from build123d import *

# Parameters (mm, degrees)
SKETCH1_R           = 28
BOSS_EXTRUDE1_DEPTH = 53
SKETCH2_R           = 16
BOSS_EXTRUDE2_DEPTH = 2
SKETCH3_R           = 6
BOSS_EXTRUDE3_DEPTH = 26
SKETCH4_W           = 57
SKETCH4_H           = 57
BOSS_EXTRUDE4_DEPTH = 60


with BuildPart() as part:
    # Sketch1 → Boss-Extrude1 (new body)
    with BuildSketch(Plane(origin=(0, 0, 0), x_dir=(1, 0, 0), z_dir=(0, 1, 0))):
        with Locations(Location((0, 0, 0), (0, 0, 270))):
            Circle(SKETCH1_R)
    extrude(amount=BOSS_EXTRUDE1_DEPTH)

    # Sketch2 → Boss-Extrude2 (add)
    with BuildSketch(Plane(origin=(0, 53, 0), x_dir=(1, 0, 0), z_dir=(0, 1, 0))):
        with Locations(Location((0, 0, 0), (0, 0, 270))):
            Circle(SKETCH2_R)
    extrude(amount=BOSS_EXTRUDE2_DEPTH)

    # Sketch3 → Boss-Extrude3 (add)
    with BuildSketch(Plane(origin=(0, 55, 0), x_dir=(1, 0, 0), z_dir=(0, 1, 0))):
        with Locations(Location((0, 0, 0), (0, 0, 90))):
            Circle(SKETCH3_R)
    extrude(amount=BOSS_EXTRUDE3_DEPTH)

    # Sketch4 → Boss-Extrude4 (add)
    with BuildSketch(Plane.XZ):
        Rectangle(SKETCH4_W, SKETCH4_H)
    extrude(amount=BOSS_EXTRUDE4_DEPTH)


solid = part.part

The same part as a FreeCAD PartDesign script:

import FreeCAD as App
import Part
import Sketcher


def add_polygon(sketch, points):
    """Adds a closed chain of lines whose ends are joined by coincident constraints."""
    first, n = sketch.GeometryCount, len(points)
    for a, b in zip(points, points[1:] + points[:1]):
        sketch.addGeometry(Part.LineSegment(App.Vector(*a, 0), App.Vector(*b, 0)), False)
    for i in range(n):
        sketch.addConstraint(Sketcher.Constraint("Coincident", first + i, 2, first + (i + 1) % n, 1))

doc = App.newDocument("Part")
body = doc.addObject("PartDesign::Body", "Body")

# Sketch on XZ plane
sketch1 = body.newObject("Sketcher::SketchObject", "Sketch")
sketch1.AttachmentSupport = (doc.getObject("XZ_Plane"), [""])
sketch1.MapMode = "FlatFace"
sketch1.addGeometry(Part.Circle(App.Vector(0, 0, 0), App.Vector(0, 0, 1), 28), False)
sketch1.addConstraint([
    Sketcher.Constraint("Coincident", 0, 3, -1, 1),
    Sketcher.Constraint("Diameter", 0, 56.0),
])
pad1 = body.newObject("PartDesign::Pad", "Pad")
pad1.Profile = sketch1
pad1.Length = 53
pad1.Reversed = True

# Sketch on XZ plane
sketch2 = body.newObject("Sketcher::SketchObject", "Sketch001")
sketch2.AttachmentSupport = (doc.getObject("XZ_Plane"), [""])
sketch2.MapMode = "FlatFace"
sketch2.AttachmentOffset = App.Placement(App.Vector(0, 0, -53), App.Rotation())
sketch2.addGeometry(Part.Circle(App.Vector(0, 0, 0), App.Vector(0, 0, 1), 16), False)
sketch2.addConstraint([
    Sketcher.Constraint("Coincident", 0, 3, -1, 1),
    Sketcher.Constraint("Diameter", 0, 32.0),
])
pad2 = body.newObject("PartDesign::Pad", "Pad001")
pad2.Profile = sketch2
pad2.Length = 2
pad2.Reversed = True

# Sketch on XZ plane
sketch3 = body.newObject("Sketcher::SketchObject", "Sketch002")
sketch3.AttachmentSupport = (doc.getObject("XZ_Plane"), [""])
sketch3.MapMode = "FlatFace"
sketch3.AttachmentOffset = App.Placement(App.Vector(0, 0, -55), App.Rotation())
sketch3.addGeometry(Part.Circle(App.Vector(0, 0, 0), App.Vector(0, 0, 1), 6), False)
sketch3.addConstraint([
    Sketcher.Constraint("Coincident", 0, 3, -1, 1),
    Sketcher.Constraint("Diameter", 0, 12.0),
])
pad3 = body.newObject("PartDesign::Pad", "Pad002")
pad3.Profile = sketch3
pad3.Length = 26
pad3.Reversed = True

# Sketch on XZ plane
sketch4 = body.newObject("Sketcher::SketchObject", "Sketch003")
sketch4.AttachmentSupport = (doc.getObject("XZ_Plane"), [""])
sketch4.MapMode = "FlatFace"
add_polygon(sketch4, [(-28, 28), (-28, -28), (28, -28), (28, 28)])  # lines 0-3
sketch4.addConstraint([
    Sketcher.Constraint("Vertical", 0),
    Sketcher.Constraint("Horizontal", 1),
    Sketcher.Constraint("Vertical", 2),
    Sketcher.Constraint("Horizontal", 3),
    Sketcher.Constraint("Symmetric", 0, 2, 2, 2, -1, 1),
    Sketcher.Constraint("Equal", 3, 0),
    Sketcher.Constraint("DistanceX", 1, 1, 1, 2, 57.0),
])
pad4 = body.newObject("PartDesign::Pad", "Pad003")
pad4.Profile = sketch4
pad4.Length = 60

doc.recompute()
